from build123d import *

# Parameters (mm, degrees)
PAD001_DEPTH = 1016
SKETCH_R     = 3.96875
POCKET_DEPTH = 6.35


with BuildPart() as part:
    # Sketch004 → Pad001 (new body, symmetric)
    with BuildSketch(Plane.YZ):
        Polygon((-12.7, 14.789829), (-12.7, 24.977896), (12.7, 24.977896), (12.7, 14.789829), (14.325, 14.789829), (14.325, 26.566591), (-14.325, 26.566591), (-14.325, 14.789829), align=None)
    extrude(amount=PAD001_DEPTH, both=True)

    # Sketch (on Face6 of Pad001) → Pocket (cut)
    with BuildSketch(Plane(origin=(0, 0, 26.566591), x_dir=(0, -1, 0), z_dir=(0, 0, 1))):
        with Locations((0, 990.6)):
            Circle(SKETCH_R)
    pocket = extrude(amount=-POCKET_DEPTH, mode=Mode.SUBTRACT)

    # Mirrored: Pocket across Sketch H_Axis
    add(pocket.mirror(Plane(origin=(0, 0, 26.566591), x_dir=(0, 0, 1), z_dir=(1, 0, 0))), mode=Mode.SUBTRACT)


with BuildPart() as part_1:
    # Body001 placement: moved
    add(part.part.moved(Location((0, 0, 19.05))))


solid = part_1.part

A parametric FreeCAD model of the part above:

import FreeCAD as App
import Part
import Sketcher
from FreeCAD import Vector
Q = App.Units.Quantity


def add_polygon(sketch, points):
    """Adds a closed chain of lines whose ends are joined by coincident constraints."""
    first, n = sketch.GeometryCount, len(points)
    for a, b in zip(points, points[1:] + points[:1]):
        sketch.addGeometry(Part.LineSegment(App.Vector(*a, 0), App.Vector(*b, 0)), False)
    for i in range(n):
        sketch.addConstraint(Sketcher.Constraint("Coincident", first + i, 2, first + (i + 1) % n, 1))

doc = App.newDocument("Part")
body = doc.addObject("PartDesign::Body", "Body")

sketch1 = body.newObject("Sketcher::SketchObject", "Sketch")
sketch1.AttachmentSupport = (doc.getObject("YZ_Plane"), [""])
sketch1.MapMode = "FlatFace"
add_polygon(sketch1, [(-12.7, 14.8), (-12.7, 25), (12.7, 25), (12.7, 14.8), (14.3, 14.8), (14.3, 26.6), (-14.3, 26.6), (-14.3, 14.8)])
sketch1.addConstraint([
    Sketcher.Constraint("Vertical", 0),
    Sketcher.Constraint("Horizontal", 1),
    Sketcher.Constraint("Vertical", 2),
    Sketcher.Constraint("Horizontal", 3),
    Sketcher.Constraint("Vertical", 4),
    Sketcher.Constraint("Horizontal", 5),
    Sketcher.Constraint("Vertical", 6),
    Sketcher.Constraint("Horizontal", 7),
    Sketcher.Constraint("Symmetric", 3, 2, 6, 2, -2),
    Sketcher.Constraint("Equal", 3, 7),
    Sketcher.Constraint("DistanceX", 1, 1, 1, 2, Q("1 in")),
    Sketcher.Constraint("DistanceX", 3, 1, 3, 2, 1.625),
    Sketcher.Constraint("DistanceY", 0, 1, 0, 2, 10.188067),
    Sketcher.Constraint("DistanceY", 4, 1, 4, 2, 11.776762),
    Sketcher.Constraint("DistanceY", -1, 1, 2, 2, 14.789829),
])
pad1 = body.newObject("PartDesign::Pad", "Pad")
pad1.Profile = sketch1
pad1.Length = Q("80 in")
pad1.Midplane = True

sketch2 = body.newObject("Sketcher::SketchObject", "Sketch001")
sketch2.AttachmentSupport = (doc.getObject("XY_Plane"), [""])
sketch2.MapMode = "FlatFace"
sketch2.AttachmentOffset = App.Placement(Vector(0, 0, 26.566591), App.Rotation())
sketch2.addGeometry(Part.Circle(Vector(990.6, 0, 0), Vector(0, 0, 1), 4), False)
sketch2.addConstraint([
    Sketcher.Constraint("PointOnObject", 0, 3, -1),
    Sketcher.Constraint("Diameter", 0, Q("0.3125 in")),
    Sketcher.Constraint("DistanceX", -1, 1, 0, 3, Q("39 in")),
])
pocket1 = body.newObject("PartDesign::Pocket", "Pocket")
pocket1.Profile = sketch2
pocket1.Length = Q("0.25 in")
doc.recompute()

mirrored = body.newObject("PartDesign::Mirrored", "Mirrored")
mirrored.Originals = [pocket1]
mirrored.MirrorPlane = (doc.getObject("YZ_Plane"), [""])
body.Tip = mirrored
body2 = doc.addObject("PartDesign::Body", "Body001")
doc.recompute()

body.Placement = App.Placement(Vector(0, 0, 19.05), App.Rotation(Vector(0, 0, 1), 0))
boolean = body2.newObject("PartDesign::Boolean", "Boolean")
boolean.Type = "Fuse"
boolean.addObjects([body])

doc.recompute()
